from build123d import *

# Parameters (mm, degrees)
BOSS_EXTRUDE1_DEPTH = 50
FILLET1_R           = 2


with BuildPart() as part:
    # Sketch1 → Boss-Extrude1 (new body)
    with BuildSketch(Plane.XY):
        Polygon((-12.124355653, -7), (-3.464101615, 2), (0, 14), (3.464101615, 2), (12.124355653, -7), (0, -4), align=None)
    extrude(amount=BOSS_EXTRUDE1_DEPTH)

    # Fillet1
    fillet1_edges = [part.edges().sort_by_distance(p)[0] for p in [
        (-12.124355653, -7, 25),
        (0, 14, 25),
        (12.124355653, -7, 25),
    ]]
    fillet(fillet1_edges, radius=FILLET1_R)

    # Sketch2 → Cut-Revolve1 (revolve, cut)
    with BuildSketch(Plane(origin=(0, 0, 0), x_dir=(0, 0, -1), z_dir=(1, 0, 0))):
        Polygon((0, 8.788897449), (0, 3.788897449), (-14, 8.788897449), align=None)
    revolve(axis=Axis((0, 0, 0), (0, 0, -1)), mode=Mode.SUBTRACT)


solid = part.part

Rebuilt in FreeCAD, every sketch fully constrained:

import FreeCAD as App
import Part
import Sketcher


def edges_at(feature, points):
    """Names of the edges that pass closest to the given points."""
    edges = feature.Shape.Edges
    near = lambda p: min(range(len(edges)), key=lambda i: edges[i].distToShape(Part.Vertex(*p))[0])
    return sorted({f"Edge{near(p) + 1}" for p in points})

doc = App.newDocument("Part")
body = doc.addObject("PartDesign::Body", "Body")

# Sketch on XY plane
sketch1 = body.newObject("Sketcher::SketchObject", "Sketch")
sketch1.AttachmentSupport = (doc.getObject("XY_Plane"), [""])
sketch1.MapMode = "FlatFace"
sketch1.addGeometry([
    Part.LineSegment(App.Vector(-3, 2, 0), App.Vector(-12, -7, 0)),  # 0
    Part.LineSegment(App.Vector(-12, -7, 0), App.Vector(0, -4, 0)),  # 1
    Part.LineSegment(App.Vector(0, -4, 0), App.Vector(12, -7, 0)),  # 2
    Part.LineSegment(App.Vector(12, -7, 0), App.Vector(3, 2, 0)),  # 3
    Part.LineSegment(App.Vector(3, 2, 0), App.Vector(0, 14, 0)),  # 4
    Part.LineSegment(App.Vector(0, 14, 0), App.Vector(-3, 2, 0)),  # 5
], False)
sketch1.addConstraint([
    Sketcher.Constraint("Coincident", 0, 2, 1, 1),
    Sketcher.Constraint("Coincident", 1, 2, 2, 1),
    Sketcher.Constraint("Coincident", 2, 2, 3, 1),
    Sketcher.Constraint("Coincident", 3, 2, 4, 1),
    Sketcher.Constraint("Coincident", 4, 2, 5, 1),
    Sketcher.Constraint("Coincident", 5, 2, 0, 1),
    Sketcher.Constraint("Symmetric", 0, 2, 2, 2, -2),
    Sketcher.Constraint("Symmetric", 3, 2, 5, 2, -2),
    Sketcher.Constraint("PointOnObject", 1, 2, -2),
    Sketcher.Constraint("PointOnObject", 4, 2, -2),
    Sketcher.Constraint("Equal", 0, 1),
    Sketcher.Constraint("Equal", 3, 4),
    Sketcher.Constraint("DistanceY", 0, 2, -1, 1, 7.0),
    Sketcher.Constraint("DistanceY", 1, 2, -1, 1, 4.0),
    Sketcher.Constraint("DistanceY", -1, 1, 3, 2, 2.0),
    Sketcher.Constraint("DistanceY", -1, 1, 4, 2, 14.0),
])
pad1 = body.newObject("PartDesign::Pad", "Pad")
pad1.Profile = sketch1
pad1.Length = 50
doc.recompute()

fillet = body.newObject("PartDesign::Fillet", "Fillet")
fillet.Base = (pad1, edges_at(pad1, [(-12.124, -7, 25), (0, 14, 25), (12.124, -7, 25)]))
fillet.Radius = 2

# Sketch on YZ plane
sketch2 = body.newObject("Sketcher::SketchObject", "Sketch001")
sketch2.AttachmentSupport = (doc.getObject("YZ_Plane"), [""])
sketch2.MapMode = "FlatFace"
sketch2.addGeometry([
    Part.LineSegment(App.Vector(4, 0, 0), App.Vector(9, 0, 0)),
    Part.LineSegment(App.Vector(9, 0, 0), App.Vector(9, 14, 0)),
    Part.LineSegment(App.Vector(9, 14, 0), App.Vector(4, 0, 0)),
], False)
sketch2.addConstraint([
    Sketcher.Constraint("Coincident", 0, 2, 1, 1),
    Sketcher.Constraint("Coincident", 1, 2, 2, 1),
    Sketcher.Constraint("Coincident", 2, 2, 0, 1),
    Sketcher.Constraint("Horizontal", 0),
    Sketcher.Constraint("Vertical", 1),
    Sketcher.Constraint("PointOnObject", 0, 2, -1),
    Sketcher.Constraint("DistanceX", 0, 1, 0, 2, 5.0),
    Sketcher.Constraint("DistanceY", 1, 1, 1, 2, 14.0),
    Sketcher.Constraint("DistanceX", -1, 1, 0, 2, 8.788897),
])
groove = body.newObject("PartDesign::Groove", "Groove")
groove.Profile = sketch2
groove.ReferenceAxis = (sketch2, ["V_Axis"])
groove.Angle = 360

doc.recompute()
